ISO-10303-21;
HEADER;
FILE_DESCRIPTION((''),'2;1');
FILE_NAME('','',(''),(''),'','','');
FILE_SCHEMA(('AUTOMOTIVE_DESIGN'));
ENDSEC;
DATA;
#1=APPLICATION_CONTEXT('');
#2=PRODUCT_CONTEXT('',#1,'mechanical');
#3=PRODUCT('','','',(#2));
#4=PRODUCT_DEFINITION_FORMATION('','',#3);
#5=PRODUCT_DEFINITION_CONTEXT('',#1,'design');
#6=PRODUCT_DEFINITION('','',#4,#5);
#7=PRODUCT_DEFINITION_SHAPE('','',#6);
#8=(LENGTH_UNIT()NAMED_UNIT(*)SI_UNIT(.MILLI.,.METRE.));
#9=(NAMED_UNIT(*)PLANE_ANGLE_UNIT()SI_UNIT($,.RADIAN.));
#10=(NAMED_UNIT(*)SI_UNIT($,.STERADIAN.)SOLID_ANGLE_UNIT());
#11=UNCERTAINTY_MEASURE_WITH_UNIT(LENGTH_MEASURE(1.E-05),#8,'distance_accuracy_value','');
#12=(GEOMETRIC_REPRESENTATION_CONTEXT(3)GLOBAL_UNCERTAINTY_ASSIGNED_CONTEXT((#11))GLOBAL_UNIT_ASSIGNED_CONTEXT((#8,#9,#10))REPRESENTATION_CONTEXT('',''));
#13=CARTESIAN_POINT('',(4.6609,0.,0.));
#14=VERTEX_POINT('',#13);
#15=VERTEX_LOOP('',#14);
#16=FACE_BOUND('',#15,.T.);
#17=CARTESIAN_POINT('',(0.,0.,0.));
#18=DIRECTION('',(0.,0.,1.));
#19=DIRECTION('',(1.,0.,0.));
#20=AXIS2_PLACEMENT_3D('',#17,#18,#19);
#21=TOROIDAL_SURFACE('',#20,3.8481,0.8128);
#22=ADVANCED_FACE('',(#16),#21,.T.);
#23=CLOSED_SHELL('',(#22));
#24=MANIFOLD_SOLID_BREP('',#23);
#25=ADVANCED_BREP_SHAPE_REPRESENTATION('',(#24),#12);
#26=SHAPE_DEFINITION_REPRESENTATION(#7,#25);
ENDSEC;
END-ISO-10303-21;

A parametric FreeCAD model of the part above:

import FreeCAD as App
import Part
import Sketcher
Q = App.Units.Quantity

doc = App.newDocument("Part")
body = doc.addObject("PartDesign::Body", "Body")

# Sketch on YZ plane
sketch1 = body.newObject("Sketcher::SketchObject", "Sketch")
sketch1.AttachmentSupport = (doc.getObject("YZ_Plane"), [""])
sketch1.MapMode = "FlatFace"
sketch1.addGeometry(Part.Circle(App.Vector(-3.8, 0, 0), App.Vector(0, 0, 1), 0.8), False)
sketch1.addConstraint(Sketcher.Constraint("PointOnObject", 0, 3, -1))
sketch1.addConstraint(Sketcher.Constraint("Diameter", 0, Q("0.064 in")))
sketch1.addConstraint(Sketcher.Constraint("DistanceX", 0, 3, -1, 1, Q("0.1515 in")))
revolution = body.newObject("PartDesign::Revolution", "Revolution")
revolution.Profile = sketch1
revolution.ReferenceAxis = (sketch1, ["V_Axis"])
revolution.Angle = 360

doc.recompute()
